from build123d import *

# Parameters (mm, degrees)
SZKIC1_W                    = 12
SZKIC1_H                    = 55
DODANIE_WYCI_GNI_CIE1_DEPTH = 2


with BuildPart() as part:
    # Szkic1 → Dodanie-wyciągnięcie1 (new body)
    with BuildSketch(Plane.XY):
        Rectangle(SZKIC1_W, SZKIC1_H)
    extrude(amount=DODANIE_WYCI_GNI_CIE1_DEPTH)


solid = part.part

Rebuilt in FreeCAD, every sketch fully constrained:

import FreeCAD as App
import Part
import Sketcher

V = App.Vector


def add_polygon(sketch, points):
    """Adds a closed chain of lines whose ends are joined by coincident constraints."""
    first, n = sketch.GeometryCount, len(points)
    for a, b in zip(points, points[1:] + points[:1]):
        sketch.addGeometry(Part.LineSegment(App.Vector(*a, 0), App.Vector(*b, 0)), False)
    for i in range(n):
        sketch.addConstraint(Sketcher.Constraint("Coincident", first + i, 2, first + (i + 1) % n, 1))

doc = App.newDocument("Part")
body = doc.addObject("PartDesign::Body", "Body")

# Sketch on XY plane
sketch1 = doc.addObject("Sketcher::SketchObject", "Sketch")
body.addObject(sketch1)
sketch1.AttachmentSupport = (doc.XY_Plane, [""])
sketch1.MapMode = "FlatFace"
add_polygon(sketch1, [(-6, 27.5), (-6, -27.5), (6, -27.5), (6, 27.5)])  # lines 0-3
sketch1.addConstraint(Sketcher.Constraint("Vertical", 0))
sketch1.addConstraint(Sketcher.Constraint("Horizontal", 1))
sketch1.addConstraint(Sketcher.Constraint("Vertical", 2))
sketch1.addConstraint(Sketcher.Constraint("Horizontal", 3))
sketch1.addConstraint(Sketcher.Constraint("Symmetric", 0, 2, 2, 2, -1, 1))
sketch1.addConstraint(Sketcher.Constraint("DistanceX", 1, 1, 1, 2, 12.0))
sketch1.addConstraint(Sketcher.Constraint("DistanceY", 0, 2, 0, 1, 55.0))
pad1 = doc.addObject("PartDesign::Pad", "Pad")
body.addObject(pad1)
pad1.Profile = sketch1
pad1.Length = 2

doc.recompute()
